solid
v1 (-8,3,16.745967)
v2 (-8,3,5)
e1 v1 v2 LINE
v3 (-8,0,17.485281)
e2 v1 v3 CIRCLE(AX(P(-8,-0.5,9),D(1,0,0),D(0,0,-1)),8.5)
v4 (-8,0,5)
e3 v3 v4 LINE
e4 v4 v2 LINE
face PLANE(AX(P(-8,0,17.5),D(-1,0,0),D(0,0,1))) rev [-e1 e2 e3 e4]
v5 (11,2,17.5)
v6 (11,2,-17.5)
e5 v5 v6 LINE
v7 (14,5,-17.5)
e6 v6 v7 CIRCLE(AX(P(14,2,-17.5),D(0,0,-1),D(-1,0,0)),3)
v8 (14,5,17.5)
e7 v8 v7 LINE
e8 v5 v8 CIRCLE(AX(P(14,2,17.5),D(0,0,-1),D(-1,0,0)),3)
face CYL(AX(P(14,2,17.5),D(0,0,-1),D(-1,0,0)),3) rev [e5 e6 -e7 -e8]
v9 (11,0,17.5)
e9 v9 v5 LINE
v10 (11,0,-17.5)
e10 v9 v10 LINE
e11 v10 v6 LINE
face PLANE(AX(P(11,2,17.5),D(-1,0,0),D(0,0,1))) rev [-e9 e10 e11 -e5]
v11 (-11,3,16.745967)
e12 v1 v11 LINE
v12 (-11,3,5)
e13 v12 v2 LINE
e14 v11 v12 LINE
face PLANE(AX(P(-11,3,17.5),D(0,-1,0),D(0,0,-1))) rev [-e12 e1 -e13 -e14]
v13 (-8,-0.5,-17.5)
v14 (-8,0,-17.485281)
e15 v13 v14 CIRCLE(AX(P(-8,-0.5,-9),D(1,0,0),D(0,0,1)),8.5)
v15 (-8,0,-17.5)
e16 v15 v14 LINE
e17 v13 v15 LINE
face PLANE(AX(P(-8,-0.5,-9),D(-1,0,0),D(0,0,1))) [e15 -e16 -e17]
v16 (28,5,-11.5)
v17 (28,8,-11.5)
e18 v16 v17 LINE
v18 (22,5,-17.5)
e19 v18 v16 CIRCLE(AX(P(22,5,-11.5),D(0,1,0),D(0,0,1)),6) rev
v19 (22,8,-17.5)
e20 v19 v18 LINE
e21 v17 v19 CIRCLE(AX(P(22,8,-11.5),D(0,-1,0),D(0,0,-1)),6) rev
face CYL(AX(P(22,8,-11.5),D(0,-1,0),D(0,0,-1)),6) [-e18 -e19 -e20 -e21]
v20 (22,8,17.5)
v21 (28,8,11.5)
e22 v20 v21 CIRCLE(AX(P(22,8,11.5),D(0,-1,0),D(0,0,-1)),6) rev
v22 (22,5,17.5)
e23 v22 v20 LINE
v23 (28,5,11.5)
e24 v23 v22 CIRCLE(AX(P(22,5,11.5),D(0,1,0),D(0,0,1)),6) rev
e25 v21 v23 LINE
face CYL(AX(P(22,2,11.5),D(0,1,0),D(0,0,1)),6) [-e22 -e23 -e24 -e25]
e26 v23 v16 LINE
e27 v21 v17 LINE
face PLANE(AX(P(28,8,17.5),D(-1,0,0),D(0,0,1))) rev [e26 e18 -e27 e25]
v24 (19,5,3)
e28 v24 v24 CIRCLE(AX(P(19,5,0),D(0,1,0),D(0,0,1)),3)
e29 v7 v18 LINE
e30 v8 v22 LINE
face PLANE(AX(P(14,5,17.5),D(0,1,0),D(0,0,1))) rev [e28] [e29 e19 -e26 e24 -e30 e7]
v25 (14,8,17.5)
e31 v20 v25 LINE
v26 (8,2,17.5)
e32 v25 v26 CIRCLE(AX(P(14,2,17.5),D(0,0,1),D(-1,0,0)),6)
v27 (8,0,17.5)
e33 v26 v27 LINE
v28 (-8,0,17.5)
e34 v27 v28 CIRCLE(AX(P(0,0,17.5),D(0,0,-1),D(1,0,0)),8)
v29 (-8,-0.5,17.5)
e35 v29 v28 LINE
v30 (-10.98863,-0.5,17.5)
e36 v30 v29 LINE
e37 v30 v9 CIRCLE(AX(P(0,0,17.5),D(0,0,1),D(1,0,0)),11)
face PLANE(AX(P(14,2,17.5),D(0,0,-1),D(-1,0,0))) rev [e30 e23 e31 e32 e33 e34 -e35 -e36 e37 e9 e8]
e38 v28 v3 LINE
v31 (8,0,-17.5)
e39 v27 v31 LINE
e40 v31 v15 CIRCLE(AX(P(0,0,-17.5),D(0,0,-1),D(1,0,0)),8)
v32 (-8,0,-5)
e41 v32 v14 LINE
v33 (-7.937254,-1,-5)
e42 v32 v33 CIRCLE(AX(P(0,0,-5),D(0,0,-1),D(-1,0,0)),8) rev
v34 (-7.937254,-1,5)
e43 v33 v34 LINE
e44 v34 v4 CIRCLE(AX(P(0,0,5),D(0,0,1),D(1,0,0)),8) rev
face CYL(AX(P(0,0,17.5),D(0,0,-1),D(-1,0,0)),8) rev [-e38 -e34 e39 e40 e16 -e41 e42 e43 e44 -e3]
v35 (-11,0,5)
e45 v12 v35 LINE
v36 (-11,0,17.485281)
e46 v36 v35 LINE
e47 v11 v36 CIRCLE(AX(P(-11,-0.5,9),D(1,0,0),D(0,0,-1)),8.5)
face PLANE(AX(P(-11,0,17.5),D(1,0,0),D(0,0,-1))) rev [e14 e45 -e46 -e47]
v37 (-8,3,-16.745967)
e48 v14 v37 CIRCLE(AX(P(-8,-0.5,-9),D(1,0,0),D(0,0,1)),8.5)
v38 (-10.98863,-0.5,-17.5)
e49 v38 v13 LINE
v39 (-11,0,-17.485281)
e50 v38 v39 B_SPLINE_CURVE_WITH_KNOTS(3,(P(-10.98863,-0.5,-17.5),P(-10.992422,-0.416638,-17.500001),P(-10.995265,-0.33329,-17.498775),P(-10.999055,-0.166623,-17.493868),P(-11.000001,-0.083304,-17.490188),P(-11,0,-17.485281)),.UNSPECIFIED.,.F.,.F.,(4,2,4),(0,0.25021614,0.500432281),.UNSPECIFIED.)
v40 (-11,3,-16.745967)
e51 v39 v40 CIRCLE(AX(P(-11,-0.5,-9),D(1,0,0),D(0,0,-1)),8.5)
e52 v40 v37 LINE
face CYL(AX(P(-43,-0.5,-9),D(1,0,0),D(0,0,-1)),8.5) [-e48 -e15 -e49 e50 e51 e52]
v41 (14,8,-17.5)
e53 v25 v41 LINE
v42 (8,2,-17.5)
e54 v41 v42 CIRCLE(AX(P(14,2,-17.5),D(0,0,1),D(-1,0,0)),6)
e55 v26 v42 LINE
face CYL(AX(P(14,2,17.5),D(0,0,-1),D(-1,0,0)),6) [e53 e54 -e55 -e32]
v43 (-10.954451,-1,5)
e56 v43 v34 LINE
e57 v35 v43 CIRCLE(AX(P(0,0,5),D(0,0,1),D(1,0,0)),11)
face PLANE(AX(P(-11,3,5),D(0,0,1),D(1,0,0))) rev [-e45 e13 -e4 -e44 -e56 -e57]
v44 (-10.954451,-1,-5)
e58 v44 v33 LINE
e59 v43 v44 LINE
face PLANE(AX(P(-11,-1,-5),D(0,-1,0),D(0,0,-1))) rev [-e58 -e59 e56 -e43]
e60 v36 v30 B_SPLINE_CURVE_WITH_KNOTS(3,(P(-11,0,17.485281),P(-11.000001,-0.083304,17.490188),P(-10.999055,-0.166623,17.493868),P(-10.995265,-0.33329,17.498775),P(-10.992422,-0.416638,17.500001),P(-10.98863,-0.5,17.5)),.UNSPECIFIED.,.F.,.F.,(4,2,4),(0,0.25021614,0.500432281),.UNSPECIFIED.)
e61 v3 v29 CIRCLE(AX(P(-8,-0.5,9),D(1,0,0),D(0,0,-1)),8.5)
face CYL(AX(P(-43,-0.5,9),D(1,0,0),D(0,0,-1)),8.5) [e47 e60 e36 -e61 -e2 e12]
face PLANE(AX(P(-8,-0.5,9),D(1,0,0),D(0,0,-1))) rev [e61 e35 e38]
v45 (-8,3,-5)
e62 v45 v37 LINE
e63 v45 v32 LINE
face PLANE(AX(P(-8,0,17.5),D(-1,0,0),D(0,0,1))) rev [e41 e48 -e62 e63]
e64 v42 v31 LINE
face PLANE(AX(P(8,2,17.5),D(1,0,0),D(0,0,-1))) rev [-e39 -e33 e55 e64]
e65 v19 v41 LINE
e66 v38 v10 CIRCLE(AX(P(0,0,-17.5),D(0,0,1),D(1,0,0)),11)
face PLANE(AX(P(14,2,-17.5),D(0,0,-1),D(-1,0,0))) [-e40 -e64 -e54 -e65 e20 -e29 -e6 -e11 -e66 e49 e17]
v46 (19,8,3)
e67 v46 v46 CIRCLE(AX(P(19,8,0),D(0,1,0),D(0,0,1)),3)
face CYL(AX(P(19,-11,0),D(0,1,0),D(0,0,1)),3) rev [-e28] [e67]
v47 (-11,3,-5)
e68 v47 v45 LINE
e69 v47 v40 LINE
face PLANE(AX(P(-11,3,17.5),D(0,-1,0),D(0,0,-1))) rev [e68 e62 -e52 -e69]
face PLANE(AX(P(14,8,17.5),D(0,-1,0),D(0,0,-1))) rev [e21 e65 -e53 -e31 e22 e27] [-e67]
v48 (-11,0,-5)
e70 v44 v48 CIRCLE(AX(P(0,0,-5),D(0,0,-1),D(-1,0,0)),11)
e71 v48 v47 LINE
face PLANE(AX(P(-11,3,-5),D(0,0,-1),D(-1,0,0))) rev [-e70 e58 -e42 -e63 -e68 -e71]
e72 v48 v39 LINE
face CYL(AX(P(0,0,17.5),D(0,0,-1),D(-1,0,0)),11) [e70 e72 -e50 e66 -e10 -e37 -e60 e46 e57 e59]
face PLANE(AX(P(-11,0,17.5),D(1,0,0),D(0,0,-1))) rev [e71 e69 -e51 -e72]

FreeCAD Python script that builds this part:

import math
import FreeCAD as App
import Part
import Sketcher
Q = App.Units.Quantity


def edges_at(feature, points):
    """Names of the edges that pass closest to the given points."""
    edges = feature.Shape.Edges
    near = lambda p: min(range(len(edges)), key=lambda i: edges[i].distToShape(Part.Vertex(*p))[0])
    return sorted({f"Edge{near(p) + 1}" for p in points})

doc = App.newDocument("Part")
body = doc.addObject("PartDesign::Body", "Body")

sketch1 = body.newObject("Sketcher::SketchObject", "Sketch")
sketch1.AttachmentSupport = (doc.getObject("XY_Plane"), [""])
sketch1.MapMode = "FlatFace"
sketch1.addGeometry([
    Part.LineSegment(App.Vector(8, 2, 0), App.Vector(8, 0, 0)),
    Part.ArcOfCircle(Part.Circle(App.Vector(0, 0, 0), App.Vector(0, 0, 1), 8), math.radians(180), math.radians(360)),
    Part.LineSegment(App.Vector(-8, 0, 0), App.Vector(-8, 3, 0)),
    Part.LineSegment(App.Vector(-8, 3, 0), App.Vector(-11, 3, 0)),
    Part.LineSegment(App.Vector(-11, 3, 0), App.Vector(-11, 0, 0)),
    Part.ArcOfCircle(Part.Circle(App.Vector(0, 0, 0), App.Vector(0, 0, 1), 11), math.radians(180), math.radians(360)),
    Part.LineSegment(App.Vector(11, 0, 0), App.Vector(11, 2, 0)),
    Part.ArcOfCircle(Part.Circle(App.Vector(14, 2, 0), App.Vector(0, 0, 1), 3), math.radians(90), math.radians(180)),
    Part.LineSegment(App.Vector(14, 5, 0), App.Vector(28, 5, 0)),
    Part.LineSegment(App.Vector(28, 5, 0), App.Vector(28, 8, 0)),
    Part.LineSegment(App.Vector(28, 8, 0), App.Vector(14, 8, 0)),
    Part.ArcOfCircle(Part.Circle(App.Vector(14, 2, 0), App.Vector(0, 0, 1), 6), math.radians(90), math.radians(180)),
], False)
sketch1.addConstraint([
    Sketcher.Constraint("Tangent", 0, 2, 1, 2),
    Sketcher.Constraint("Tangent", 1, 1, 2, 1),
    Sketcher.Constraint("Coincident", 2, 2, 3, 1),
    Sketcher.Constraint("Coincident", 3, 2, 4, 1),
    Sketcher.Constraint("Tangent", 4, 2, 5, 1),
    Sketcher.Constraint("Tangent", 5, 2, 6, 1),
    Sketcher.Constraint("Tangent", 6, 2, 7, 2),
    Sketcher.Constraint("Tangent", 7, 1, 8, 1),
    Sketcher.Constraint("Coincident", 8, 2, 9, 1),
    Sketcher.Constraint("Coincident", 9, 2, 10, 1),
    Sketcher.Constraint("Tangent", 10, 2, 11, 1),
    Sketcher.Constraint("Tangent", 11, 2, 0, 1),
    Sketcher.Constraint("Vertical", 0),
    Sketcher.Constraint("Vertical", 2),
    Sketcher.Constraint("Horizontal", 3),
    Sketcher.Constraint("Vertical", 4),
    Sketcher.Constraint("Vertical", 6),
    Sketcher.Constraint("Horizontal", 8),
    Sketcher.Constraint("Vertical", 9),
    Sketcher.Constraint("Horizontal", 10),
    Sketcher.Constraint("Coincident", 1, 3, -1, 1),
    Sketcher.Constraint("Coincident", 5, 3, -1, 1),
    Sketcher.Constraint("Coincident", 11, 3, 7, 3),
    Sketcher.Constraint("Equal", 3, 2),
    Sketcher.Constraint("Radius", 1, Q("8 mm")),
    Sketcher.Constraint("Radius", 5, Q("11 mm")),
    Sketcher.Constraint("Radius", 7, Q("3 mm")),
    Sketcher.Constraint("DistanceX", 8, 1, 8, 2, Q("14 mm")),
    Sketcher.Constraint("DistanceY", 0, 2, 0, 1, Q("2 mm")),
])
pad1 = body.newObject("PartDesign::Pad", "Pad")
pad1.Profile = sketch1
pad1.Length = 35
pad1.Midplane = True
doc.recompute()

fillet = body.newObject("PartDesign::Fillet", "Fillet")
fillet.Base = (pad1, edges_at(pad1, [(28, 6.5, -17.5), (28, 6.5, 17.5)]))
fillet.Radius = 6

sketch2 = body.newObject("Sketcher::SketchObject", "Sketch001")
sketch2.AttachmentSupport = (doc.getObject("XZ_Plane"), [""])
sketch2.MapMode = "FlatFace"
sketch2.AttachmentOffset = App.Placement(App.Vector(0, 0, -8), App.Rotation())
sketch2.addGeometry(Part.Circle(App.Vector(19, 0, 0), App.Vector(0, 0, 1), 3), False)
sketch2.addConstraint([
    Sketcher.Constraint("PointOnObject", 0, 3, -1),
    Sketcher.Constraint("Diameter", 0, Q("6 mm")),
    Sketcher.Constraint("DistanceX", -1, 1, 0, 3, Q("19 mm")),
])
pocket1 = body.newObject("PartDesign::Pocket", "Pocket")
pocket1.Profile = sketch2
pocket1.Type = "ThroughAll"
pocket1.Reversed = True

sketch3 = body.newObject("Sketcher::SketchObject", "Sketch002")
sketch3.AttachmentSupport = (doc.getObject("YZ_Plane"), [""])
sketch3.MapMode = "FlatFace"
sketch3.AttachmentOffset = App.Placement(App.Vector(0, 0, -8), App.Rotation())
sketch3.addGeometry([
    Part.LineSegment(App.Vector(8, -9, 0), App.Vector(8, -18, 0)),
    Part.LineSegment(App.Vector(8, -18, 0), App.Vector(0, -18, 0)),
    Part.ArcOfCircle(Part.Circle(App.Vector(0, -9, 0), App.Vector(0, 0, 1), 8), math.radians(-90), math.radians(0)),
    Part.LineSegment(App.Vector(0, 18, 0), App.Vector(8, 18, 0)),
    Part.LineSegment(App.Vector(8, 18, 0), App.Vector(8, 9, 0)),
    Part.ArcOfCircle(Part.Circle(App.Vector(0, 9, 0), App.Vector(0, 0, 1), 8), math.radians(0), math.radians(90)),
], False)
sketch3.addConstraint([
    Sketcher.Constraint("Coincident", 0, 2, 1, 1),
    Sketcher.Constraint("Tangent", 1, 2, 2, 1),
    Sketcher.Constraint("Tangent", 2, 2, 0, 1),
    Sketcher.Constraint("Coincident", 3, 2, 4, 1),
    Sketcher.Constraint("Tangent", 4, 2, 5, 1),
    Sketcher.Constraint("Tangent", 5, 2, 3, 1),
    Sketcher.Constraint("Vertical", 0),
    Sketcher.Constraint("Horizontal", 1),
    Sketcher.Constraint("Horizontal", 3),
    Sketcher.Constraint("Vertical", 4),
    Sketcher.Constraint("Equal", 2, 5),
    Sketcher.Constraint("Symmetric", 2, 3, 5, 3, -1),
    Sketcher.Constraint("Radius", 2, Q("8.5 mm")),
    Sketcher.Constraint("DistanceY", 2, 3, -1, 1, Q("9 mm")),
    Sketcher.Constraint("DistanceX", -1, 1, 0, 2, Q("8 mm")),
])
pocket2 = body.newObject("PartDesign::Pocket", "Pocket001")
pocket2.Profile = sketch3
pocket2.Length = 35

sketch4 = body.newObject("Sketcher::SketchObject", "Sketch003")
sketch4.AttachmentSupport = (doc.getObject("YZ_Plane"), [""])
sketch4.MapMode = "FlatFace"
sketch4.addGeometry([
    Part.LineSegment(App.Vector(3, 5, 0), App.Vector(-1, 5, 0)),
    Part.LineSegment(App.Vector(-1, 5, 0), App.Vector(-1, -5, 0)),
    Part.LineSegment(App.Vector(-1, -5, 0), App.Vector(3, -5, 0)),
    Part.LineSegment(App.Vector(3, -5, 0), App.Vector(3, 5, 0)),
], False)
sketch4.addConstraint([
    Sketcher.Constraint("Coincident", 0, 2, 1, 1),
    Sketcher.Constraint("Coincident", 1, 2, 2, 1),
    Sketcher.Constraint("Coincident", 2, 2, 3, 1),
    Sketcher.Constraint("Coincident", 3, 2, 0, 1),
    Sketcher.Constraint("Horizontal", 0),
    Sketcher.Constraint("Vertical", 1),
    Sketcher.Constraint("Horizontal", 2),
    Sketcher.Constraint("Vertical", 3),
    Sketcher.Constraint("DistanceX", 0, 2, 0, 1, Q("4 mm")),
    Sketcher.Constraint("DistanceY", 1, 2, 1, 1, Q("10 mm")),
    Sketcher.Constraint("DistanceX", 0, 2, -1, 1, Q("1 mm")),
    Sketcher.Constraint("DistanceY", -1, 1, 0, 2, Q("5 mm")),
])
pocket3 = body.newObject("PartDesign::Pocket", "Pocket002")
pocket3.Profile = sketch4
pocket3.Type = "ThroughAll"

doc.recompute()
